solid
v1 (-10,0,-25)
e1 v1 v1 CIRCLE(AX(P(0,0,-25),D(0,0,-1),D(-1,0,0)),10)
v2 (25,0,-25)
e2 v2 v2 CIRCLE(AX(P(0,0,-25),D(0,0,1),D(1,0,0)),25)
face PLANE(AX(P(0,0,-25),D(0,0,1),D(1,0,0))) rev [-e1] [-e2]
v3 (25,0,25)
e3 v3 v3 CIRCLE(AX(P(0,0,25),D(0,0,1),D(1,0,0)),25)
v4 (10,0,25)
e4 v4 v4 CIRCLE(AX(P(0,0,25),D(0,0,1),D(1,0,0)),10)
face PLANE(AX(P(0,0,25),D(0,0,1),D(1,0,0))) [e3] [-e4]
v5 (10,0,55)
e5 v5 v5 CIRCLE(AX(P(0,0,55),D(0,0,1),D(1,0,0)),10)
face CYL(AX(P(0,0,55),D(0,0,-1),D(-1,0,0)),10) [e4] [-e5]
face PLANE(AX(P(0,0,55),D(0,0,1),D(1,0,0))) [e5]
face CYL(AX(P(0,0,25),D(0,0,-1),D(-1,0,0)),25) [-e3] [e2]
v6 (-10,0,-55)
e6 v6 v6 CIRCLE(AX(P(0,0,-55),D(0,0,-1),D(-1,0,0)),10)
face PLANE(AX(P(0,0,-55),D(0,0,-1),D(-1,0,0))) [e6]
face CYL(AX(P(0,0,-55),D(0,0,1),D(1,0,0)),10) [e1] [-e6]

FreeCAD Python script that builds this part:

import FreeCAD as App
import Part
import Sketcher

V = App.Vector

doc = App.newDocument("Part")
body = doc.addObject("PartDesign::Body", "Body")

sketch1 = body.newObject("Sketcher::SketchObject", "Sketch")
sketch1.AttachmentSupport = (doc.getObject("XY_Plane"), [""])
sketch1.MapMode = "FlatFace"
sketch1.addGeometry(Part.Circle(V(0, 0, 0), V(0, 0, 1), 25), False)
sketch1.addConstraint(Sketcher.Constraint("Coincident", 0, 3, -1, 1))
sketch1.addConstraint(Sketcher.Constraint("Diameter", 0, 50.0))
pad1 = body.newObject("PartDesign::Pad", "Pad")
pad1.Profile = sketch1
pad1.Length = 50
pad1.Midplane = True

sketch2 = body.newObject("Sketcher::SketchObject", "Sketch001")
sketch2.AttachmentSupport = (doc.getObject("XY_Plane"), [""])
sketch2.MapMode = "FlatFace"
sketch2.AttachmentOffset = App.Placement(V(0, 0, -25), App.Rotation())
sketch2.addGeometry(Part.Circle(V(0, 0, 0), V(0, 0, 1), 10), False)
sketch2.addConstraint(Sketcher.Constraint("Coincident", 0, 3, -1, 1))
sketch2.addConstraint(Sketcher.Constraint("Diameter", 0, 20.0))
pad2 = body.newObject("PartDesign::Pad", "Pad001")
pad2.Profile = sketch2
pad2.Length = 30
pad2.Reversed = True

sketch3 = body.newObject("Sketcher::SketchObject", "Sketch002")
sketch3.AttachmentSupport = (doc.getObject("XY_Plane"), [""])
sketch3.MapMode = "FlatFace"
sketch3.AttachmentOffset = App.Placement(V(0, 0, 55), App.Rotation())
sketch3.addGeometry(Part.Circle(V(0, 0, 0), V(0, 0, 1), 10), False)
sketch3.addConstraint(Sketcher.Constraint("Coincident", 0, 3, -1, 1))
sketch3.addConstraint(Sketcher.Constraint("Diameter", 0, 20.0))
pad3 = body.newObject("PartDesign::Pad", "Pad002")
pad3.Profile = sketch3
pad3.Length = 30
pad3.Reversed = True

doc.recompute()
